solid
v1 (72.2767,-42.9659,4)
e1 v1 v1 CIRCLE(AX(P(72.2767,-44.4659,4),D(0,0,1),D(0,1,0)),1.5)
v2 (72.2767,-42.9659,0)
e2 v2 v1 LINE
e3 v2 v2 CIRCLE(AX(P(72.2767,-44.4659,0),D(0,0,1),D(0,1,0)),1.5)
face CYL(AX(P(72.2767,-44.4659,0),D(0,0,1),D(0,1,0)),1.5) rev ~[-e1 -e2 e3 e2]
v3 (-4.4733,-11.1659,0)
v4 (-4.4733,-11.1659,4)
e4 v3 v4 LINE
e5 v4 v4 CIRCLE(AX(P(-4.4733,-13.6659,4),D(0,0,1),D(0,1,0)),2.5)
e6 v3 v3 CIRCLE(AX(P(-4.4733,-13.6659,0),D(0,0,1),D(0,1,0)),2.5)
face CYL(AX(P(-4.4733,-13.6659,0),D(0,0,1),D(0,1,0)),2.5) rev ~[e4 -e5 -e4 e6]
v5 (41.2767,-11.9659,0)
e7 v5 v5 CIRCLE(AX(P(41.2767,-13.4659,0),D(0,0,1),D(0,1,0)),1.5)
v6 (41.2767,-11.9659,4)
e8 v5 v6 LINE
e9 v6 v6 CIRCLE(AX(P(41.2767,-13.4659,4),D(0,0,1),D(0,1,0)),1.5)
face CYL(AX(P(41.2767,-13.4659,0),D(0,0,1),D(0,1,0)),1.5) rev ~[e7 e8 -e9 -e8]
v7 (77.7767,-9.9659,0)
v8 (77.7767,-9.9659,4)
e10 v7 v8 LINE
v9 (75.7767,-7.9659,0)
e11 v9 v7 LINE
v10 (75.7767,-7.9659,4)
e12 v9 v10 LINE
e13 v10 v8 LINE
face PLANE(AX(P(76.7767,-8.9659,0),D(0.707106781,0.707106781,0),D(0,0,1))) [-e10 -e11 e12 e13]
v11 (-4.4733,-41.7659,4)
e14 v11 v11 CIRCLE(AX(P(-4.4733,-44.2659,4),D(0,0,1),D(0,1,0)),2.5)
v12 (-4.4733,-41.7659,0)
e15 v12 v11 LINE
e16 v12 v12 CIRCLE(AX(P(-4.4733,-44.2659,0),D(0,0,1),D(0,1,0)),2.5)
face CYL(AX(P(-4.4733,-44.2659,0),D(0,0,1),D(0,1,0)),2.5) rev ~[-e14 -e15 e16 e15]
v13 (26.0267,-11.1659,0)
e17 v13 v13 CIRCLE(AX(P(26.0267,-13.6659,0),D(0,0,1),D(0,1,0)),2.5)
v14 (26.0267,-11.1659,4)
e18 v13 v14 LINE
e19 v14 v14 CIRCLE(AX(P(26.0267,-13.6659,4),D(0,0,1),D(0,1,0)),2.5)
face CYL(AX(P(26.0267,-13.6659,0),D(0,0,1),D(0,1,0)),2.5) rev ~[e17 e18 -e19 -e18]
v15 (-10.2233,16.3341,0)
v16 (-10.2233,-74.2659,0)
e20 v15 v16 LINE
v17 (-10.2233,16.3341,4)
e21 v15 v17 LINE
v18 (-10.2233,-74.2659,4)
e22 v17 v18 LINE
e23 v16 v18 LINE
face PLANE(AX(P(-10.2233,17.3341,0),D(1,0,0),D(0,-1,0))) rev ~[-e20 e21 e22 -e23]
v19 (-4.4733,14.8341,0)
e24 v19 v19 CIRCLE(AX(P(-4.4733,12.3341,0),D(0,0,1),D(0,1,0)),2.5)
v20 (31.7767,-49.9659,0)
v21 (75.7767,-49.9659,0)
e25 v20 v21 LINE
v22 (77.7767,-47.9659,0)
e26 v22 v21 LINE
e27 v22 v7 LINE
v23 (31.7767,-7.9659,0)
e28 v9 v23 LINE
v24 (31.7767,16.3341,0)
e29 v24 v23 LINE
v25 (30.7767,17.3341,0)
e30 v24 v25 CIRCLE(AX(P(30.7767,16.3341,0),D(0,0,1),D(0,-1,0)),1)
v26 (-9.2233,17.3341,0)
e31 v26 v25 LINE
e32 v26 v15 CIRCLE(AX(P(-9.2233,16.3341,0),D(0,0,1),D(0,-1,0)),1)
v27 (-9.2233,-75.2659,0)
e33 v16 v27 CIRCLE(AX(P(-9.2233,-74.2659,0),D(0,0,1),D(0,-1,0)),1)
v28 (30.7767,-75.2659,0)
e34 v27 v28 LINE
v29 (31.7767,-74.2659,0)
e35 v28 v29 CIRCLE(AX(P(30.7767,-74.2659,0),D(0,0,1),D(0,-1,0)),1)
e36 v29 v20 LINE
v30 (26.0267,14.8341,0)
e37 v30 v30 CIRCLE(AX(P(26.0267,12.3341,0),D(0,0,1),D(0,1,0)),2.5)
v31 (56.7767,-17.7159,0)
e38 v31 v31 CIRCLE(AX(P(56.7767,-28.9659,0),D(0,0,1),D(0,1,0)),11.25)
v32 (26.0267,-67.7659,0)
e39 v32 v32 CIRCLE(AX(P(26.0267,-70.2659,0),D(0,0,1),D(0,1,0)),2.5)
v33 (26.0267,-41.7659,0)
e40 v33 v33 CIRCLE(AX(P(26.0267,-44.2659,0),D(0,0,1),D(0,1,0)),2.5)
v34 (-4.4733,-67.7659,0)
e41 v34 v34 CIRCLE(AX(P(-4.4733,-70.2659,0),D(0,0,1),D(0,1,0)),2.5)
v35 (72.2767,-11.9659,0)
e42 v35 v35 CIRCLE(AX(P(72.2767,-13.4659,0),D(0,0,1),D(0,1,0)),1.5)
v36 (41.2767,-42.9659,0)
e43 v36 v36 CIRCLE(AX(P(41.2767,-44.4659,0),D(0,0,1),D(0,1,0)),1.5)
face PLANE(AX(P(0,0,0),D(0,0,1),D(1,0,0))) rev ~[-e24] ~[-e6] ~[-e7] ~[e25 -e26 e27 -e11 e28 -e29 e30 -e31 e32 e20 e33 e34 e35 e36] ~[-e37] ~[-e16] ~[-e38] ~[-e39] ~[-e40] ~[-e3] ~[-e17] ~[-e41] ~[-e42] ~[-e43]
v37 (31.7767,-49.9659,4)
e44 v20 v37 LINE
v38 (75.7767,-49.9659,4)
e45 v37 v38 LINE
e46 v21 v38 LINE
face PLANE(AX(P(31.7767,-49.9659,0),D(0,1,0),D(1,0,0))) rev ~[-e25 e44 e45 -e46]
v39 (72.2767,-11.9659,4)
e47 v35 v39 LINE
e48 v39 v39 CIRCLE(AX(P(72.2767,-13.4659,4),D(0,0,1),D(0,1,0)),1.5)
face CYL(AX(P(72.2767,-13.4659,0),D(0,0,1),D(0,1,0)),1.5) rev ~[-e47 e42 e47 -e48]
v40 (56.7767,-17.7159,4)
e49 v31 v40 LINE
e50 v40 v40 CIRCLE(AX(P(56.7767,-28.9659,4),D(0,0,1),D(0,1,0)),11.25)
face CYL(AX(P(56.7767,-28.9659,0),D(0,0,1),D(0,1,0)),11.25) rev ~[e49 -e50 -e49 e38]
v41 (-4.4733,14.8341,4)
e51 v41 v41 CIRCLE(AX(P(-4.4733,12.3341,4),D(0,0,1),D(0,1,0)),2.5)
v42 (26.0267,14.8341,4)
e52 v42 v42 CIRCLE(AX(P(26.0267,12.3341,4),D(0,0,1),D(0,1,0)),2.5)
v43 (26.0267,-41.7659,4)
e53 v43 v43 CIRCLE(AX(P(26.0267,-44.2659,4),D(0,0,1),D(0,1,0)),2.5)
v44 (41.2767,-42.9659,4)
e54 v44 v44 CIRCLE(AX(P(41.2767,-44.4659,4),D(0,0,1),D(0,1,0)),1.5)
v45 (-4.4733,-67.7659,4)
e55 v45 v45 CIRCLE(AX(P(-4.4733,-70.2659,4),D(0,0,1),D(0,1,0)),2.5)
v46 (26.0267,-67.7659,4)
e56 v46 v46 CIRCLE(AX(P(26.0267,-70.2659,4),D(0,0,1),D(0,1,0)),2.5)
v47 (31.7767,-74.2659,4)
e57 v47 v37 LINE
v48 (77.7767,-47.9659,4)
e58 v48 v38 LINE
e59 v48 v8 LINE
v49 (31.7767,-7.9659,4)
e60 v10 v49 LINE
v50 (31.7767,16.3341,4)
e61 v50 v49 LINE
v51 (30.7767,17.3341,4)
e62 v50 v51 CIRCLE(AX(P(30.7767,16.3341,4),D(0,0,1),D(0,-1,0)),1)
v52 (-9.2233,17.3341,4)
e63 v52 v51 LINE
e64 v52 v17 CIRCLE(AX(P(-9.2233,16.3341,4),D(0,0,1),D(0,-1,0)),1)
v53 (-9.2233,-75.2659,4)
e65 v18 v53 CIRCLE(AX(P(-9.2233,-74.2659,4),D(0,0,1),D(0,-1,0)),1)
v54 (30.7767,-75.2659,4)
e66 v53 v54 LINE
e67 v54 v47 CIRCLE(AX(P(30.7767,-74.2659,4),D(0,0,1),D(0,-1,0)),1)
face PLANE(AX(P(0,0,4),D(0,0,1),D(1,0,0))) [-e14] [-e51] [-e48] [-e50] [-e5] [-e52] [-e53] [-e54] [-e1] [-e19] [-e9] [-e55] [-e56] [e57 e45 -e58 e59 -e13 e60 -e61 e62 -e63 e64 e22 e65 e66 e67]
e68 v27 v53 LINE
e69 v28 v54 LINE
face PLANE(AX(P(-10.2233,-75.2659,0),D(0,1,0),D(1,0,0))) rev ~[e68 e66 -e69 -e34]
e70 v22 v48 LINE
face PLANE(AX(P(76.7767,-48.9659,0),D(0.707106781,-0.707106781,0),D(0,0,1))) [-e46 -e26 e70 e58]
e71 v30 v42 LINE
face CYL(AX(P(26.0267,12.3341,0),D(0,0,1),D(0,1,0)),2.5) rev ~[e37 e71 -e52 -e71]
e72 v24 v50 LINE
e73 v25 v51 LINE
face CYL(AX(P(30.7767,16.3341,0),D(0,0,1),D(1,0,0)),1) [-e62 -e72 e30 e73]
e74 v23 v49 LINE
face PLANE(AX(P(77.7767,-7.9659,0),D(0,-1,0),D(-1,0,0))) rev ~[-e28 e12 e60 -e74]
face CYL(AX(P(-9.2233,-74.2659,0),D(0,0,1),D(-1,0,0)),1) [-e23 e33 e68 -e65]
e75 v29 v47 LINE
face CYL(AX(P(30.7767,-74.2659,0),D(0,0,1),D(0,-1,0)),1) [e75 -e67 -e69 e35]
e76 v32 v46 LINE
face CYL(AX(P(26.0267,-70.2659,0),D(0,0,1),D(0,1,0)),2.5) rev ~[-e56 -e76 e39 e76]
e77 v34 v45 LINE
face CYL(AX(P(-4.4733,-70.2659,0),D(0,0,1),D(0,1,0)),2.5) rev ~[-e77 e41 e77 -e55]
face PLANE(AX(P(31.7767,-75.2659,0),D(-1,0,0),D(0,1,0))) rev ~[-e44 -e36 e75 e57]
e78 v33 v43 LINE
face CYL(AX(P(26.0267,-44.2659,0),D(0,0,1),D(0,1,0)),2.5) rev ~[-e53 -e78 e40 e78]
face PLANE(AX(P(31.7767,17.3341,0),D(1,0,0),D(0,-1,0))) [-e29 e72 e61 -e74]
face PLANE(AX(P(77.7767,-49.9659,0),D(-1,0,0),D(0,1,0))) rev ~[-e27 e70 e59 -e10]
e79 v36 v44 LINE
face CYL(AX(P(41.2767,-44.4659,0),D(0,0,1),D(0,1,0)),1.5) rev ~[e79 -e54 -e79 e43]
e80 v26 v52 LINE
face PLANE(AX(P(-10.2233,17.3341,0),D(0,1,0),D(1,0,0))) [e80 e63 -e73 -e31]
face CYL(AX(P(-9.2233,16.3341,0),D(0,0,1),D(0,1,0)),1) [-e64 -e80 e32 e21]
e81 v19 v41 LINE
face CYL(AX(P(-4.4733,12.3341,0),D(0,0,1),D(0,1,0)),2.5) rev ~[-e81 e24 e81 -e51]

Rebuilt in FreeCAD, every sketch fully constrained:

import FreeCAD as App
import Part
import Sketcher
Q = App.Units.Quantity


def edges_at(feature, points):
    """Names of the edges that pass closest to the given points."""
    edges = feature.Shape.Edges
    near = lambda p: min(range(len(edges)), key=lambda i: edges[i].distToShape(Part.Vertex(*p))[0])
    return sorted({f"Edge{near(p) + 1}" for p in points})


def add_polygon(sketch, points):
    """Adds a closed chain of lines whose ends are joined by coincident constraints."""
    first, n = sketch.GeometryCount, len(points)
    for a, b in zip(points, points[1:] + points[:1]):
        sketch.addGeometry(Part.LineSegment(App.Vector(*a, 0), App.Vector(*b, 0)), False)
    for i in range(n):
        sketch.addConstraint(Sketcher.Constraint("Coincident", first + i, 2, first + (i + 1) % n, 1))

doc = App.newDocument("Part")
params = doc.addObject("Spreadsheet::Sheet", "Params")
for row, (alias, value) in enumerate([
    ("sketch1_width", "42 mm"),
    ("sketch1_width2", "46 mm"),
    ("sketch1_height", "92.6 mm"),
    ("pad1_length", "4 mm"),
    ("sketch2_diameter", "3 mm"),
    ("hole_diameter", "3 mm"),
    ("sketch3_diameter", "22.5 mm"),
    ("hole2_diameter", "22.5 mm"),
    ("chamfer_size", "2 mm"),
    ("sketch4_diameter", "5 mm"),
    ("hole3_diameter", "5 mm"),
    ("fillet_radius", "1 mm"),
], start=1):
    params.set(f"A{row}", alias)
    params.set(f"B{row}", "=" + value)
    params.setAlias(f"B{row}", alias)

body = doc.addObject("PartDesign::Body", "Body")

# Sketch on XY plane
sketch1 = body.newObject("Sketcher::SketchObject", "Sketch")
sketch1.AttachmentSupport = (doc.getObject("XY_Plane"), [""])
sketch1.MapMode = "FlatFace"
add_polygon(sketch1, [(32, 17), (-10, 17), (-10, -75), (32, -75), (32, -50), (78, -50), (78, -8), (32, -8)])  # lines 0-7
sketch1.addConstraint(Sketcher.Constraint("Horizontal", 0))
sketch1.addConstraint(Sketcher.Constraint("Vertical", 1))
sketch1.addConstraint(Sketcher.Constraint("Horizontal", 2))
sketch1.addConstraint(Sketcher.Constraint("Vertical", 3))
sketch1.addConstraint(Sketcher.Constraint("Horizontal", 4))
sketch1.addConstraint(Sketcher.Constraint("Vertical", 5))
sketch1.addConstraint(Sketcher.Constraint("Horizontal", 6))
sketch1.addConstraint(Sketcher.Constraint("Vertical", 7))
sketch1.addConstraint(Sketcher.Constraint("Vertical", 3, 2, 6, 2))
sketch1.addConstraint(Sketcher.Constraint("Equal", 2, 5))
sketch1.addConstraint(Sketcher.Constraint("Equal", 3, 7))
sketch1.addConstraint(Sketcher.Constraint("DistanceX", 0, 2, 0, 1, Q("42 mm")))
sketch1.addConstraint(Sketcher.Constraint("DistanceX", 4, 1, 4, 2, Q("46 mm")))
sketch1.addConstraint(Sketcher.Constraint("DistanceY", 1, 2, 1, 1, Q("92.6 mm")))
sketch1.addConstraint(Sketcher.Constraint("DistanceY", -1, 1, 0, 2, Q("17.334 mm")))
sketch1.addConstraint(Sketcher.Constraint("DistanceX", 0, 2, -1, 1, Q("10.2233 mm")))
sketch1.setExpression("Constraints[19]", "Params.sketch1_width")
sketch1.setExpression("Constraints[20]", "Params.sketch1_width2")
sketch1.setExpression("Constraints[21]", "Params.sketch1_height")
pad1 = body.newObject("PartDesign::Pad", "Pad")
pad1.Profile = sketch1
pad1.setExpression("Length", "Params.pad1_length")

# Sketch on XY plane
sketch2 = body.newObject("Sketcher::SketchObject", "Sketch001")
sketch2.AttachmentSupport = (doc.getObject("XY_Plane"), [""])
sketch2.MapMode = "FlatFace"
sketch2.addGeometry(Part.Circle(App.Vector(41.3, -13.5, 0), App.Vector(0, 0, 1), 1.5), False)
sketch2.addGeometry(Part.Circle(App.Vector(72.3, -13.5, 0), App.Vector(0, 0, 1), 1.5), False)
sketch2.addGeometry(Part.Circle(App.Vector(41.3, -44.5, 0), App.Vector(0, 0, 1), 1.5), False)
sketch2.addGeometry(Part.Circle(App.Vector(72.3, -44.5, 0), App.Vector(0, 0, 1), 1.5), False)
sketch2.addConstraint(Sketcher.Constraint("Equal", 0, 1))
sketch2.addConstraint(Sketcher.Constraint("Equal", 1, 2))
sketch2.addConstraint(Sketcher.Constraint("Equal", 2, 3))
sketch2.addConstraint(Sketcher.Constraint("Horizontal", 0, 3, 1, 3))
sketch2.addConstraint(Sketcher.Constraint("Horizontal", 2, 3, 3, 3))
sketch2.addConstraint(Sketcher.Constraint("Vertical", 0, 3, 2, 3))
sketch2.addConstraint(Sketcher.Constraint("Vertical", 1, 3, 3, 3))
sketch2.addConstraint(Sketcher.Constraint("Diameter", 0, Q("3 mm")))
sketch2.addConstraint(Sketcher.Constraint("DistanceX", 0, 3, 1, 3, Q("31 mm")))
sketch2.addConstraint(Sketcher.Constraint("DistanceY", 2, 3, 0, 3, Q("31 mm")))
sketch2.addConstraint(Sketcher.Constraint("DistanceY", 0, 3, -1, 1, Q("13.466 mm")))
sketch2.addConstraint(Sketcher.Constraint("DistanceX", -1, 1, 0, 3, Q("41.2767 mm")))
sketch2.setExpression("Constraints[7]", "Params.sketch2_diameter")
doc.recompute()
hole = body.newObject("PartDesign::Hole", "Hole")
hole.Profile = sketch2
hole.ThreadType = "None"
hole.setExpression("Diameter", "Params.hole_diameter")
hole.DepthType = "ThroughAll"
hole.Reversed = True

# Sketch on XY plane
sketch3 = body.newObject("Sketcher::SketchObject", "Sketch002")
sketch3.AttachmentSupport = (doc.getObject("XY_Plane"), [""])
sketch3.MapMode = "FlatFace"
sketch3.addGeometry(Part.Circle(App.Vector(57, -29, 0), App.Vector(0, 0, 1), 11), False)
sketch3.addConstraint(Sketcher.Constraint("Diameter", 0, Q("22.5 mm")))
sketch3.addConstraint(Sketcher.Constraint("DistanceY", 0, 3, -1, 1, Q("28.966 mm")))
sketch3.addConstraint(Sketcher.Constraint("DistanceX", -1, 1, 0, 3, Q("56.7767 mm")))
sketch3.setExpression("Constraints[0]", "Params.sketch3_diameter")
doc.recompute()
hole2 = body.newObject("PartDesign::Hole", "Hole001")
hole2.Profile = sketch3
hole2.ThreadType = "None"
hole2.setExpression("Diameter", "Params.hole2_diameter")
hole2.DepthType = "ThroughAll"
hole2.Reversed = True
doc.recompute()

chamfer = body.newObject("PartDesign::Chamfer", "Chamfer")
chamfer.Base = (hole2, edges_at(hole2, [(77.777, -7.966, 2), (77.777, -49.966, 2)]))
chamfer.setExpression("Size", "Params.chamfer_size")

# Sketch on XY plane
sketch4 = body.newObject("Sketcher::SketchObject", "Sketch003")
sketch4.AttachmentSupport = (doc.getObject("XY_Plane"), [""])
sketch4.MapMode = "FlatFace"
sketch4.addGeometry(Part.Circle(App.Vector(-4.5, 12.3, 0), App.Vector(0, 0, 1), 2.5), False)
sketch4.addGeometry(Part.Circle(App.Vector(26, 12.3, 0), App.Vector(0, 0, 1), 2.5), False)
sketch4.addGeometry(Part.Circle(App.Vector(-4.5, -13.7, 0), App.Vector(0, 0, 1), 2.5), False)
sketch4.addGeometry(Part.Circle(App.Vector(26, -13.7, 0), App.Vector(0, 0, 1), 2.5), False)
sketch4.addGeometry(Part.Circle(App.Vector(-4.5, -44.3, 0), App.Vector(0, 0, 1), 2.5), False)
sketch4.addGeometry(Part.Circle(App.Vector(26, -44.3, 0), App.Vector(0, 0, 1), 2.5), False)
sketch4.addGeometry(Part.Circle(App.Vector(-4.5, -70.3, 0), App.Vector(0, 0, 1), 2.5), False)
sketch4.addGeometry(Part.Circle(App.Vector(26, -70.3, 0), App.Vector(0, 0, 1), 2.5), False)
sketch4.addConstraint(Sketcher.Constraint("Equal", 0, 1))
sketch4.addConstraint(Sketcher.Constraint("Equal", 1, 2))
sketch4.addConstraint(Sketcher.Constraint("Equal", 2, 3))
sketch4.addConstraint(Sketcher.Constraint("Equal", 3, 4))
sketch4.addConstraint(Sketcher.Constraint("Equal", 4, 5))
sketch4.addConstraint(Sketcher.Constraint("Equal", 5, 6))
sketch4.addConstraint(Sketcher.Constraint("Equal", 6, 7))
sketch4.addConstraint(Sketcher.Constraint("Horizontal", 0, 3, 1, 3))
sketch4.addConstraint(Sketcher.Constraint("Horizontal", 2, 3, 3, 3))
sketch4.addConstraint(Sketcher.Constraint("Horizontal", 4, 3, 5, 3))
sketch4.addConstraint(Sketcher.Constraint("Horizontal", 6, 3, 7, 3))
sketch4.addConstraint(Sketcher.Constraint("Vertical", 0, 3, 2, 3))
sketch4.addConstraint(Sketcher.Constraint("Vertical", 1, 3, 3, 3))
sketch4.addConstraint(Sketcher.Constraint("Vertical", 2, 3, 4, 3))
sketch4.addConstraint(Sketcher.Constraint("Vertical", 3, 3, 5, 3))
sketch4.addConstraint(Sketcher.Constraint("Vertical", 4, 3, 6, 3))
sketch4.addConstraint(Sketcher.Constraint("Vertical", 5, 3, 7, 3))
sketch4.addConstraint(Sketcher.Constraint("Diameter", 0, Q("5 mm")))
sketch4.addConstraint(Sketcher.Constraint("DistanceY", 2, 3, 0, 3, Q("26 mm")))
sketch4.addConstraint(Sketcher.Constraint("DistanceY", 6, 3, 4, 3, Q("26 mm")))
sketch4.addConstraint(Sketcher.Constraint("DistanceX", 0, 3, 1, 3, Q("30.5 mm")))
sketch4.addConstraint(Sketcher.Constraint("DistanceY", 4, 3, 2, 3, Q("30.6 mm")))
sketch4.addConstraint(Sketcher.Constraint("DistanceY", -1, 1, 0, 3, Q("12.334 mm")))
sketch4.addConstraint(Sketcher.Constraint("DistanceX", 0, 3, -1, 1, Q("4.4733 mm")))
sketch4.setExpression("Constraints[17]", "Params.sketch4_diameter")
doc.recompute()
hole3 = body.newObject("PartDesign::Hole", "Hole002")
hole3.Profile = sketch4
hole3.ThreadType = "None"
hole3.setExpression("Diameter", "Params.hole3_diameter")
hole3.DepthType = "ThroughAll"
hole3.Reversed = True
doc.recompute()

fillet = body.newObject("PartDesign::Fillet", "Fillet")
fillet.Base = (hole3, edges_at(hole3, [
    (31.777, 17.334, 2),
    (-10.223, 17.334, 2),
    (31.777, -75.266, 2),
    (-10.223, -75.266, 2),
]))
fillet.setExpression("Radius", "Params.fillet_radius")

doc.recompute()
